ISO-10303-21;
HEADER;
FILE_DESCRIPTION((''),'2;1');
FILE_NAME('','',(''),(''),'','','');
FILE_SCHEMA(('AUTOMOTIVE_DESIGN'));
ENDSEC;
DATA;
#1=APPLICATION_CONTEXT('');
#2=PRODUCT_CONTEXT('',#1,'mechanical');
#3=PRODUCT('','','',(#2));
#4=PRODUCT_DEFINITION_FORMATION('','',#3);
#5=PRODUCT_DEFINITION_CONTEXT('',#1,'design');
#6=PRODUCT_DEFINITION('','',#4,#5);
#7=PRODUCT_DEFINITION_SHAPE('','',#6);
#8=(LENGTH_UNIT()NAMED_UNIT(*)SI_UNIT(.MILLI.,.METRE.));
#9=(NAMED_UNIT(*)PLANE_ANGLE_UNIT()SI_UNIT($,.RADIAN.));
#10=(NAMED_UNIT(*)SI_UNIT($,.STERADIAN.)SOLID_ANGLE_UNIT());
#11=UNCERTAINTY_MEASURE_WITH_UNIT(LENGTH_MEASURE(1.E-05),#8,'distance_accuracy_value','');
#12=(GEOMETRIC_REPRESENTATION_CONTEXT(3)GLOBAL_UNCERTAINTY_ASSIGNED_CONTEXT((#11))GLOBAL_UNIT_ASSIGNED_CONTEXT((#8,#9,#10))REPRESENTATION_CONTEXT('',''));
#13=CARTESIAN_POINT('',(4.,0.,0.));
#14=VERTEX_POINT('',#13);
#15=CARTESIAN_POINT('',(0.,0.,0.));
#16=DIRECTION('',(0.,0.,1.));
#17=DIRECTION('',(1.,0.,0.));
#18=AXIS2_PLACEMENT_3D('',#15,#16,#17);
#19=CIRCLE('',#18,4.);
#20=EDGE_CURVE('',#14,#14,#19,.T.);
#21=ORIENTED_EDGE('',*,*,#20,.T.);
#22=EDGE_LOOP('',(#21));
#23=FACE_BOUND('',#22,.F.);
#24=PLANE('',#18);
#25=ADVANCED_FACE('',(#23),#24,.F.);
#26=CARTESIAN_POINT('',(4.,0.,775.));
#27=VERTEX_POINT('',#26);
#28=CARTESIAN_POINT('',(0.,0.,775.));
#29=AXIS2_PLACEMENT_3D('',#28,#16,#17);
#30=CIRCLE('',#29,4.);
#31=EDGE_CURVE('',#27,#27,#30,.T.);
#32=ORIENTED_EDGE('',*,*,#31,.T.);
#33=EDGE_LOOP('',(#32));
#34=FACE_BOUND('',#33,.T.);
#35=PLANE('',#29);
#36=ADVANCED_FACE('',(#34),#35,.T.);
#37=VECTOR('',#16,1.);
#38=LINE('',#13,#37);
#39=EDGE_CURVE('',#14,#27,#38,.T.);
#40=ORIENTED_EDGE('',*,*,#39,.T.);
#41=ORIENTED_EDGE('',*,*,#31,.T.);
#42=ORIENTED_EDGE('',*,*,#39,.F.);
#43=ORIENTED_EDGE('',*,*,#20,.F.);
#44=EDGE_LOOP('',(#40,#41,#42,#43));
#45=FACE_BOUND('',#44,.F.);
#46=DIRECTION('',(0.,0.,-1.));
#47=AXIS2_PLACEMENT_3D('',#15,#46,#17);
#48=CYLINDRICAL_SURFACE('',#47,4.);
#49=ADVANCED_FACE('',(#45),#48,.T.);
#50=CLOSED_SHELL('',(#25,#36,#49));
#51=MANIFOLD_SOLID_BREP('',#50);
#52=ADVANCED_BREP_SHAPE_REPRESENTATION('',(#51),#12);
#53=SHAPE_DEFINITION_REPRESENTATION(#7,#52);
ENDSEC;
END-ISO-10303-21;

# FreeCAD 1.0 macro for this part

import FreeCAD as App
import Part
import Sketcher

V = App.Vector

doc = App.newDocument("Part")
params = doc.addObject("Spreadsheet::Sheet", "Params")
for row, (alias, value) in enumerate([
    ("sketch1_diameter", "8 mm"),
    ("pad1_length", "775 mm"),
], start=1):
    params.set(f"A{row}", alias)
    params.set(f"B{row}", "=" + value)
    params.setAlias(f"B{row}", alias)

body = doc.addObject("PartDesign::Body", "Body")

# Sketch on XY plane
sketch1 = doc.addObject("Sketcher::SketchObject", "Sketch")
body.addObject(sketch1)
sketch1.AttachmentSupport = (doc.XY_Plane, [""])
sketch1.MapMode = "FlatFace"
sketch1.addGeometry(Part.Circle(V(0, 0, 0), V(0, 0, 1), 4), False)
sketch1.addConstraint(Sketcher.Constraint("Coincident", 0, 3, -1, 1))
sketch1.addConstraint(Sketcher.Constraint("Diameter", 0, 8.0))
sketch1.setExpression("Constraints[1]", "Params.sketch1_diameter")
pad1 = doc.addObject("PartDesign::Pad", "Pad")
body.addObject(pad1)
pad1.Profile = sketch1
pad1.setExpression("Length", "Params.pad1_length")

doc.recompute()
